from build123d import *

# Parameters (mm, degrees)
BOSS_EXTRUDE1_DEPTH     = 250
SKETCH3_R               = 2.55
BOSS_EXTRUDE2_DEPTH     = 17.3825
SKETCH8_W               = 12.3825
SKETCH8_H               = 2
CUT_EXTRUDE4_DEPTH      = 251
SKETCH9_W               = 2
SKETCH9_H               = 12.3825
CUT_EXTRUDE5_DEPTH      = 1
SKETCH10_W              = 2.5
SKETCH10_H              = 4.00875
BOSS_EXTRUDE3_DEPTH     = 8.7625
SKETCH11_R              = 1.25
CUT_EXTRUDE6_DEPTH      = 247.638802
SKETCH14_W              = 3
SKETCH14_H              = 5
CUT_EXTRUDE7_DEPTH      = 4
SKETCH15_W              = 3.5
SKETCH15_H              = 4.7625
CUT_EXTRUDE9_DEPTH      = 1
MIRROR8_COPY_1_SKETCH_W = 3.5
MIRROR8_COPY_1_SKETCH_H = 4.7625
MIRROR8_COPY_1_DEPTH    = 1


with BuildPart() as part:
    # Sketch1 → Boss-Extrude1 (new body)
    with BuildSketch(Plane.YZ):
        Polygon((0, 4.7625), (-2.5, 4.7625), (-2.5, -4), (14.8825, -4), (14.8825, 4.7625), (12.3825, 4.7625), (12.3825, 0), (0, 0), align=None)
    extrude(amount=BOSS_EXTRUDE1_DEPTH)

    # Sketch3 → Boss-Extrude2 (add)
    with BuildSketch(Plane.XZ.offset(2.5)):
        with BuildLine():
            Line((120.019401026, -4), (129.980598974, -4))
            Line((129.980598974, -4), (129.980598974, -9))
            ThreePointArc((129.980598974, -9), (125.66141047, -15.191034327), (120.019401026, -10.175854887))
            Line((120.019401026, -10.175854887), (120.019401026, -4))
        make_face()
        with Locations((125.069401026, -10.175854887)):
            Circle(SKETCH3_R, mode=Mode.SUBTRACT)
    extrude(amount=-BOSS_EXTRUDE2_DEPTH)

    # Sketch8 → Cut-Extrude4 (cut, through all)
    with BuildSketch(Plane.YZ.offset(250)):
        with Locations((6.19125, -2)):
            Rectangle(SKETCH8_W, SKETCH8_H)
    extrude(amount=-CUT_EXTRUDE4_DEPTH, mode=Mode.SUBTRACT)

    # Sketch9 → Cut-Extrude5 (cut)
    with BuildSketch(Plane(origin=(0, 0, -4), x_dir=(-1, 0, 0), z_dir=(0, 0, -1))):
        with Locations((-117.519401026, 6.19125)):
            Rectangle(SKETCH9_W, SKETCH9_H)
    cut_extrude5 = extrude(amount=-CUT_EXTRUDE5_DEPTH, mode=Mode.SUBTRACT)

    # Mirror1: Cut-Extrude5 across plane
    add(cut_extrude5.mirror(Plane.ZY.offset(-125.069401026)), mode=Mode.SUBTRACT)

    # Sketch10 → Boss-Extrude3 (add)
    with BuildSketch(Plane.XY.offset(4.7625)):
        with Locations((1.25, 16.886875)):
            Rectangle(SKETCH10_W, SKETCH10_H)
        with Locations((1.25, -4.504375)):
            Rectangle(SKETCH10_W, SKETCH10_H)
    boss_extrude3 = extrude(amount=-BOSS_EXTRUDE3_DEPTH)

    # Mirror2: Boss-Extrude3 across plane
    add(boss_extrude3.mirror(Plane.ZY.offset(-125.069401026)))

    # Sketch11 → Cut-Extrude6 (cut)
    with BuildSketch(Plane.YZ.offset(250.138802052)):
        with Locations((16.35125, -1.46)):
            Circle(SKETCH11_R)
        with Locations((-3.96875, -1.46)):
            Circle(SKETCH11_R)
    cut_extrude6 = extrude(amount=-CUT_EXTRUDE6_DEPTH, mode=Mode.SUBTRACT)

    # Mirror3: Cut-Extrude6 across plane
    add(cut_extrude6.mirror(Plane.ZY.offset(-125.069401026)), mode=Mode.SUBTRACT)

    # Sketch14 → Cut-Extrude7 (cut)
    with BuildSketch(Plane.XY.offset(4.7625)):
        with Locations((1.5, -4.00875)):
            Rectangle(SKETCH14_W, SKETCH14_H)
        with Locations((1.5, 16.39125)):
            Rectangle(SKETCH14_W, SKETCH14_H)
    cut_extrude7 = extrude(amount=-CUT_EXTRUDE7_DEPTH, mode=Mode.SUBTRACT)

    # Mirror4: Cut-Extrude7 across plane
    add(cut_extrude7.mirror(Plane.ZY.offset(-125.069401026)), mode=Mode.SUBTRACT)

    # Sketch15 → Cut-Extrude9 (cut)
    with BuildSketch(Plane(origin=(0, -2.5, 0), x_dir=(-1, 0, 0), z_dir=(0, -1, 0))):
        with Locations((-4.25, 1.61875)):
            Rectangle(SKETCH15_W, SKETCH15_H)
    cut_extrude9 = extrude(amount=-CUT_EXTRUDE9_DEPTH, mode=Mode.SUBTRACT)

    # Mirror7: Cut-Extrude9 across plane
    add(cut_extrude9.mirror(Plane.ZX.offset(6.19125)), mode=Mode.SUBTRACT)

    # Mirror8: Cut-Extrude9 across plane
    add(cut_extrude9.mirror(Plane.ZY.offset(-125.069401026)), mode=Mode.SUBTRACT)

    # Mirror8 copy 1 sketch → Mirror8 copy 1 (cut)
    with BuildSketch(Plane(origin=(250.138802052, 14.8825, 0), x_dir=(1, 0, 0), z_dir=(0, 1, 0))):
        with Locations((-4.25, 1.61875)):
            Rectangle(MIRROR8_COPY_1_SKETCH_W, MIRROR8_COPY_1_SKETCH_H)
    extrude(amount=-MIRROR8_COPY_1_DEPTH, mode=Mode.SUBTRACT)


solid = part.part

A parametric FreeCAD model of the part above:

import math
import FreeCAD as App
import Part
import Sketcher


def add_polygon(sketch, points):
    """Adds a closed chain of lines whose ends are joined by coincident constraints."""
    first, n = sketch.GeometryCount, len(points)
    for a, b in zip(points, points[1:] + points[:1]):
        sketch.addGeometry(Part.LineSegment(App.Vector(*a, 0), App.Vector(*b, 0)), False)
    for i in range(n):
        sketch.addConstraint(Sketcher.Constraint("Coincident", first + i, 2, first + (i + 1) % n, 1))

doc = App.newDocument("Part")
params = doc.addObject("Spreadsheet::Sheet", "Params")
for row, (alias, value) in enumerate([
    ("sketch1_width", "2.5 mm"),
    ("pad1_length", "250 mm"),
    ("sketch2_diameter", "5.1 mm"),
    ("sketch2_height", "5 mm"),
    ("sketch2_radius", "5.05 mm"),
    ("pad2_length", "17.3825 mm"),
    ("sketch3_height", "2 mm"),
    ("sketch4_width", "2 mm"),
    ("pocket2_length", "1 mm"),
    ("sketch5_width", "2.5 mm"),
    ("pad3_length", "8.7625 mm"),
    ("sketch6_diameter", "2.5 mm"),
    ("pocket3_length", "247.638802 mm"),
    ("sketch7_width", "3 mm"),
    ("sketch7_height", "5 mm"),
    ("pocket4_length", "4 mm"),
    ("sketch8_width", "3.5 mm"),
    ("pocket5_length", "1 mm"),
    ("sketch9_width", "3.5 mm"),
    ("pocket6_length", "1 mm"),
], start=1):
    params.set(f"A{row}", alias)
    params.set(f"B{row}", "=" + value)
    params.setAlias(f"B{row}", alias)

body = doc.addObject("PartDesign::Body", "Body")

sketch1 = doc.addObject("Sketcher::SketchObject", "Sketch")
body.addObject(sketch1)
sketch1.AttachmentSupport = (doc.YZ_Plane, [""])
sketch1.MapMode = "FlatFace"
add_polygon(sketch1, [(0, 4.8), (-2.5, 4.8), (-2.5, -4), (14.9, -4), (14.9, 4.8), (12.4, 4.8), (12.4, 0), (0, 0)])
sketch1.addConstraint([
    Sketcher.Constraint("Horizontal", 0),
    Sketcher.Constraint("Vertical", 1),
    Sketcher.Constraint("Horizontal", 2),
    Sketcher.Constraint("Vertical", 3),
    Sketcher.Constraint("Horizontal", 4),
    Sketcher.Constraint("Vertical", 5),
    Sketcher.Constraint("Horizontal", 6),
    Sketcher.Constraint("Vertical", 7),
    Sketcher.Constraint("Coincident", 6, 2, -1, 1),
    Sketcher.Constraint("Horizontal", 0, 2, 3, 2),
    Sketcher.Constraint("Equal", 0, 4),
    Sketcher.Constraint("DistanceX", 0, 2, 0, 1, 2.5),
    Sketcher.Constraint("DistanceY", 1, 2, -1, 1, 4.0),
    Sketcher.Constraint("DistanceX", 2, 1, 2, 2, 17.3825),
    Sketcher.Constraint("DistanceY", 1, 2, 1, 1, 8.7625),
])
sketch1.setExpression("Constraints[19]", "Params.sketch1_width")
pad1 = doc.addObject("PartDesign::Pad", "Pad")
body.addObject(pad1)
pad1.Profile = sketch1
pad1.setExpression("Length", "Params.pad1_length")

sketch2 = doc.addObject("Sketcher::SketchObject", "Sketch001")
body.addObject(sketch2)
sketch2.AttachmentSupport = (doc.XZ_Plane, [""])
sketch2.MapMode = "FlatFace"
sketch2.AttachmentOffset = App.Placement(App.Vector(0, 0, 2.5), App.Rotation())
sketch2.addGeometry([
    Part.LineSegment(App.Vector(130, -4, 0), App.Vector(120, -4, 0)),
    Part.LineSegment(App.Vector(120, -4, 0), App.Vector(120, -10.2, 0)),
    Part.ArcOfCircle(Part.Circle(App.Vector(125.1, -10.2, 0), App.Vector(0, 0, 1), 5), math.radians(180), math.radians(373)),
    Part.LineSegment(App.Vector(130, -9, 0), App.Vector(130, -4, 0)),
    Part.Circle(App.Vector(125.1, -10.2, 0), App.Vector(0, 0, 1), 2.5),
], False)
sketch2.addConstraint([
    Sketcher.Constraint("Coincident", 0, 2, 1, 1),
    Sketcher.Constraint("Tangent", 1, 2, 2, 1),
    Sketcher.Constraint("Coincident", 2, 2, 3, 1),
    Sketcher.Constraint("Coincident", 3, 2, 0, 1),
    Sketcher.Constraint("Horizontal", 0),
    Sketcher.Constraint("Vertical", 1),
    Sketcher.Constraint("Vertical", 3),
    Sketcher.Constraint("Coincident", 4, 3, 2, 3),
    Sketcher.Constraint("Diameter", 4, 5.1),
    Sketcher.Constraint("DistanceY", 3, 1, 3, 2, 5.0),
    Sketcher.Constraint("Radius", 2, 5.05),
    Sketcher.Constraint("DistanceY", 0, 2, -1, 1, 4.0),
    Sketcher.Constraint("DistanceX", -1, 1, 2, 3, 125.069401),
    Sketcher.Constraint("DistanceX", -1, 1, 2, 2, 129.980599),
])
sketch2.setExpression("Constraints[8]", "Params.sketch2_diameter")
sketch2.setExpression("Constraints[9]", "Params.sketch2_height")
sketch2.setExpression("Constraints[10]", "Params.sketch2_radius")
pad2 = doc.addObject("PartDesign::Pad", "Pad001")
body.addObject(pad2)
pad2.Profile = sketch2
pad2.setExpression("Length", "Params.pad2_length")
pad2.Reversed = True

sketch3 = doc.addObject("Sketcher::SketchObject", "Sketch002")
body.addObject(sketch3)
sketch3.AttachmentSupport = (doc.YZ_Plane, [""])
sketch3.MapMode = "FlatFace"
sketch3.AttachmentOffset = App.Placement(App.Vector(0, 0, 250), App.Rotation())
add_polygon(sketch3, [(0, -1), (0, -3), (12.4, -3), (12.4, -1)])
sketch3.addConstraint([
    Sketcher.Constraint("Vertical", 0),
    Sketcher.Constraint("Horizontal", 1),
    Sketcher.Constraint("Vertical", 2),
    Sketcher.Constraint("Horizontal", 3),
    Sketcher.Constraint("PointOnObject", 0, 2, -2),
    Sketcher.Constraint("DistanceY", 0, 2, 0, 1, 2.0),
    Sketcher.Constraint("DistanceY", 0, 2, -1, 1, 3.0),
    Sketcher.Constraint("DistanceX", 1, 1, 1, 2, 12.3825),
])
sketch3.setExpression("Constraints[9]", "Params.sketch3_height")
pocket1 = doc.addObject("PartDesign::Pocket", "Pocket")
body.addObject(pocket1)
pocket1.Profile = sketch3
pocket1.Type = "ThroughAll"

sketch4 = doc.addObject("Sketcher::SketchObject", "Sketch003")
body.addObject(sketch4)
sketch4.AttachmentSupport = (doc.XY_Plane, [""])
sketch4.MapMode = "FlatFace"
sketch4.AttachmentOffset = App.Placement(App.Vector(0, 0, -4), App.Rotation())
add_polygon(sketch4, [(118.5, 12.4), (118.5, 0), (116.5, 0), (116.5, 12.4)])
sketch4.addConstraint([
    Sketcher.Constraint("Vertical", 0),
    Sketcher.Constraint("Horizontal", 1),
    Sketcher.Constraint("Vertical", 2),
    Sketcher.Constraint("Horizontal", 3),
    Sketcher.Constraint("PointOnObject", 0, 2, -1),
    Sketcher.Constraint("DistanceX", 1, 2, 1, 1, 2.0),
    Sketcher.Constraint("DistanceY", 0, 2, 0, 1, 12.3825),
    Sketcher.Constraint("DistanceX", -1, 1, 0, 2, 118.519401),
])
sketch4.setExpression("Constraints[9]", "Params.sketch4_width")
pocket2 = doc.addObject("PartDesign::Pocket", "Pocket001")
body.addObject(pocket2)
pocket2.Profile = sketch4
pocket2.setExpression("Length", "Params.pocket2_length")
pocket2.Reversed = True
doc.recompute()

datumplane = doc.addObject("PartDesign::Plane", "DatumPlane")
body.addObject(datumplane)
datumplane.AttachmentSupport = (doc.YZ_Plane, [""])
datumplane.MapMode = "FlatFace"
datumplane.AttachmentOffset = App.Placement(App.Vector(0, 0, 125.069401), App.Rotation())
mirrored = doc.addObject("PartDesign::Mirrored", "Mirrored")
body.addObject(mirrored)
mirrored.Originals = [pocket2]
mirrored.MirrorPlane = (datumplane, [""])
body.Tip = mirrored

sketch5 = doc.addObject("Sketcher::SketchObject", "Sketch004")
body.addObject(sketch5)
sketch5.AttachmentSupport = (doc.XY_Plane, [""])
sketch5.MapMode = "FlatFace"
sketch5.AttachmentOffset = App.Placement(App.Vector(0, 0, 4.7625), App.Rotation())
add_polygon(sketch5, [(0, 18.9), (0, 14.9), (2.5, 14.9), (2.5, 18.9)])
add_polygon(sketch5, [(0, -2.5), (0, -6.5), (2.5, -6.5), (2.5, -2.5)])
sketch5.addConstraint([
    Sketcher.Constraint("Vertical", 0),
    Sketcher.Constraint("Horizontal", 1),
    Sketcher.Constraint("Vertical", 2),
    Sketcher.Constraint("Horizontal", 3),
    Sketcher.Constraint("Vertical", 4),
    Sketcher.Constraint("Horizontal", 5),
    Sketcher.Constraint("Vertical", 6),
    Sketcher.Constraint("Horizontal", 7),
    Sketcher.Constraint("PointOnObject", 0, 2, -2),
    Sketcher.Constraint("PointOnObject", 4, 2, -2),
    Sketcher.Constraint("Vertical", 2, 2, 5, 2),
    Sketcher.Constraint("Equal", 2, 4),
    Sketcher.Constraint("DistanceX", 1, 1, 1, 2, 2.5),
    Sketcher.Constraint("DistanceY", 6, 2, -1, 1, 2.5),
    Sketcher.Constraint("DistanceY", 4, 2, 3, 2, 25.4),
    Sketcher.Constraint("DistanceY", 0, 2, 0, 1, 4.00875),
])
sketch5.setExpression("Constraints[20]", "Params.sketch5_width")
pad3 = doc.addObject("PartDesign::Pad", "Pad002")
body.addObject(pad3)
pad3.Profile = sketch5
pad3.setExpression("Length", "Params.pad3_length")
pad3.Reversed = True
doc.recompute()

datumplane2 = doc.addObject("PartDesign::Plane", "DatumPlane001")
body.addObject(datumplane2)
datumplane2.AttachmentSupport = (doc.YZ_Plane, [""])
datumplane2.MapMode = "FlatFace"
datumplane2.AttachmentOffset = App.Placement(App.Vector(0, 0, 125.069401), App.Rotation())
mirrored2 = doc.addObject("PartDesign::Mirrored", "Mirrored001")
body.addObject(mirrored2)
mirrored2.Originals = [pad3]
mirrored2.MirrorPlane = (datumplane2, [""])
body.Tip = mirrored2

sketch6 = doc.addObject("Sketcher::SketchObject", "Sketch005")
body.addObject(sketch6)
sketch6.AttachmentSupport = (doc.YZ_Plane, [""])
sketch6.MapMode = "FlatFace"
sketch6.AttachmentOffset = App.Placement(App.Vector(0, 0, 250.138802), App.Rotation())
sketch6.addGeometry([
    Part.Circle(App.Vector(16.4, -1.5, 0), App.Vector(0, 0, 1), 1.2),
    Part.Circle(App.Vector(-4, -1.5, 0), App.Vector(0, 0, 1), 1.2),
], False)
sketch6.addConstraint([
    Sketcher.Constraint("Equal", 0, 1),
    Sketcher.Constraint("Horizontal", 0, 3, 1, 3),
    Sketcher.Constraint("Diameter", 0, 2.5),
    Sketcher.Constraint("DistanceY", 0, 3, -1, 1, 1.46),
    Sketcher.Constraint("DistanceX", 1, 3, 0, 3, 20.32),
    Sketcher.Constraint("DistanceX", -1, 1, 0, 3, 16.35125),
])
sketch6.setExpression("Constraints[2]", "Params.sketch6_diameter")
pocket3 = doc.addObject("PartDesign::Pocket", "Pocket002")
body.addObject(pocket3)
pocket3.Profile = sketch6
pocket3.setExpression("Length", "Params.pocket3_length")
doc.recompute()

datumplane3 = doc.addObject("PartDesign::Plane", "DatumPlane002")
body.addObject(datumplane3)
datumplane3.AttachmentSupport = (doc.YZ_Plane, [""])
datumplane3.MapMode = "FlatFace"
datumplane3.AttachmentOffset = App.Placement(App.Vector(0, 0, 125.069401), App.Rotation())
mirrored3 = doc.addObject("PartDesign::Mirrored", "Mirrored002")
body.addObject(mirrored3)
mirrored3.Originals = [pocket3]
mirrored3.MirrorPlane = (datumplane3, [""])
body.Tip = mirrored3

sketch7 = doc.addObject("Sketcher::SketchObject", "Sketch006")
body.addObject(sketch7)
sketch7.AttachmentSupport = (doc.XY_Plane, [""])
sketch7.MapMode = "FlatFace"
sketch7.AttachmentOffset = App.Placement(App.Vector(0, 0, 4.7625), App.Rotation())
add_polygon(sketch7, [(0, -1.5), (0, -6.5), (3, -6.5), (3, -1.5)])
add_polygon(sketch7, [(0, 18.9), (0, 13.9), (3, 13.9), (3, 18.9)])
sketch7.addConstraint([
    Sketcher.Constraint("Vertical", 0),
    Sketcher.Constraint("Horizontal", 1),
    Sketcher.Constraint("Vertical", 2),
    Sketcher.Constraint("Horizontal", 3),
    Sketcher.Constraint("Vertical", 4),
    Sketcher.Constraint("Horizontal", 5),
    Sketcher.Constraint("Vertical", 6),
    Sketcher.Constraint("Horizontal", 7),
    Sketcher.Constraint("PointOnObject", 0, 2, -2),
    Sketcher.Constraint("PointOnObject", 4, 2, -2),
    Sketcher.Constraint("Vertical", 2, 2, 5, 2),
    Sketcher.Constraint("Equal", 2, 4),
    Sketcher.Constraint("DistanceX", 1, 1, 1, 2, 3.0),
    Sketcher.Constraint("DistanceY", 0, 2, 0, 1, 5.0),
    Sketcher.Constraint("DistanceY", 3, 2, 4, 2, 15.4),
    Sketcher.Constraint("DistanceY", 0, 2, -1, 1, 6.50875),
])
sketch7.setExpression("Constraints[20]", "Params.sketch7_width")
sketch7.setExpression("Constraints[21]", "Params.sketch7_height")
pocket4 = doc.addObject("PartDesign::Pocket", "Pocket003")
body.addObject(pocket4)
pocket4.Profile = sketch7
pocket4.setExpression("Length", "Params.pocket4_length")
doc.recompute()

datumplane4 = doc.addObject("PartDesign::Plane", "DatumPlane003")
body.addObject(datumplane4)
datumplane4.AttachmentSupport = (doc.YZ_Plane, [""])
datumplane4.MapMode = "FlatFace"
datumplane4.AttachmentOffset = App.Placement(App.Vector(0, 0, 125.069401), App.Rotation())
mirrored4 = doc.addObject("PartDesign::Mirrored", "Mirrored003")
body.addObject(mirrored4)
mirrored4.Originals = [pocket4]
mirrored4.MirrorPlane = (datumplane4, [""])
body.Tip = mirrored4

sketch8 = doc.addObject("Sketcher::SketchObject", "Sketch007")
body.addObject(sketch8)
sketch8.AttachmentSupport = (doc.XZ_Plane, [""])
sketch8.MapMode = "FlatFace"
sketch8.AttachmentOffset = App.Placement(App.Vector(0, 0, 2.5), App.Rotation())
add_polygon(sketch8, [(6, -4), (6, 0.8), (2.5, 0.8), (2.5, -4)])
sketch8.addConstraint([
    Sketcher.Constraint("Vertical", 0),
    Sketcher.Constraint("Horizontal", 1),
    Sketcher.Constraint("Vertical", 2),
    Sketcher.Constraint("Horizontal", 3),
    Sketcher.Constraint("DistanceX", 1, 2, 1, 1, 3.5),
    Sketcher.Constraint("DistanceX", -1, 1, 0, 2, 6.0),
    Sketcher.Constraint("DistanceY", 2, 2, -1, 1, 4.0),
    Sketcher.Constraint("DistanceY", 0, 1, 0, 2, 4.7625),
])
sketch8.setExpression("Constraints[8]", "Params.sketch8_width")
pocket5 = doc.addObject("PartDesign::Pocket", "Pocket004")
body.addObject(pocket5)
pocket5.Profile = sketch8
pocket5.setExpression("Length", "Params.pocket5_length")
doc.recompute()

datumplane5 = doc.addObject("PartDesign::Plane", "DatumPlane004")
body.addObject(datumplane5)
datumplane5.AttachmentSupport = (doc.XZ_Plane, [""])
datumplane5.MapMode = "FlatFace"
datumplane5.AttachmentOffset = App.Placement(App.Vector(0, 0, -6.19125), App.Rotation())
mirrored5 = doc.addObject("PartDesign::Mirrored", "Mirrored004")
body.addObject(mirrored5)
mirrored5.Originals = [pocket5]
mirrored5.MirrorPlane = (datumplane5, [""])
body.Tip = mirrored5
doc.recompute()

datumplane6 = doc.addObject("PartDesign::Plane", "DatumPlane005")
body.addObject(datumplane6)
datumplane6.AttachmentSupport = (doc.YZ_Plane, [""])
datumplane6.MapMode = "FlatFace"
datumplane6.AttachmentOffset = App.Placement(App.Vector(0, 0, 125.069401), App.Rotation())
mirrored6 = doc.addObject("PartDesign::Mirrored", "Mirrored005")
body.addObject(mirrored6)
mirrored6.Originals = [pocket5]
mirrored6.MirrorPlane = (datumplane6, [""])
body.Tip = mirrored6

sketch9 = doc.addObject("Sketcher::SketchObject", "Sketch008")
body.addObject(sketch9)
sketch9.AttachmentSupport = (doc.XZ_Plane, [""])
sketch9.MapMode = "FlatFace"
sketch9.AttachmentOffset = App.Placement(App.Vector(0, 0, -14.8825), App.Rotation())
add_polygon(sketch9, [(244.1, -4), (244.1, 0.8), (247.6, 0.8), (247.6, -4)])
sketch9.addConstraint([
    Sketcher.Constraint("Vertical", 0),
    Sketcher.Constraint("Horizontal", 1),
    Sketcher.Constraint("Vertical", 2),
    Sketcher.Constraint("Horizontal", 3),
    Sketcher.Constraint("DistanceX", 1, 1, 1, 2, 3.5),
    Sketcher.Constraint("DistanceY", 2, 2, -1, 1, 4.0),
    Sketcher.Constraint("DistanceY", 0, 1, 0, 2, 4.7625),
    Sketcher.Constraint("DistanceX", -1, 1, 0, 2, 244.138802),
])
sketch9.setExpression("Constraints[8]", "Params.sketch9_width")
pocket6 = doc.addObject("PartDesign::Pocket", "Pocket005")
body.addObject(pocket6)
pocket6.Profile = sketch9
pocket6.setExpression("Length", "Params.pocket6_length")
pocket6.Reversed = True

doc.recompute()
